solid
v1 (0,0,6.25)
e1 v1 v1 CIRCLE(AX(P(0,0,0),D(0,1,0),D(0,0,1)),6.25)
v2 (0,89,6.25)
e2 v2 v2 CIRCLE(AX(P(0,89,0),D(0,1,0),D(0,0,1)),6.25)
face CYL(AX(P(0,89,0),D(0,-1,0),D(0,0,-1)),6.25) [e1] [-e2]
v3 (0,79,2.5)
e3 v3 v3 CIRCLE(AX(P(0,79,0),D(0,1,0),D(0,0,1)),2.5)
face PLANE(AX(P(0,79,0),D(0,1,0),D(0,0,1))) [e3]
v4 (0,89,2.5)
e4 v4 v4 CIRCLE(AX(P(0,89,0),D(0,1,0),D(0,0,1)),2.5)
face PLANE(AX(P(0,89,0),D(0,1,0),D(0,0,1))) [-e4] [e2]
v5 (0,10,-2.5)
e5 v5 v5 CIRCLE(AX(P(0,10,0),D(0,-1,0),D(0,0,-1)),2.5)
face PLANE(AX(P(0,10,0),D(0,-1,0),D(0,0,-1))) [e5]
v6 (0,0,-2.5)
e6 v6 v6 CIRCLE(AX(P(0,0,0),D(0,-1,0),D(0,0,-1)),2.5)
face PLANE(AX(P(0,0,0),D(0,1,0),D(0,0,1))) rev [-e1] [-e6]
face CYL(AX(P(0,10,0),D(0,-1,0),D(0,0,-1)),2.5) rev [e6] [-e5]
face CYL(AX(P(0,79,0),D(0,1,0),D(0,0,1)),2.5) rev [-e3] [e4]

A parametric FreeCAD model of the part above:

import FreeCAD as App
import Part
import Sketcher
from FreeCAD import Vector

doc = App.newDocument("Part")
body = doc.addObject("PartDesign::Body", "Body")

sketch1 = doc.addObject("Sketcher::SketchObject", "Sketch")
body.addObject(sketch1)
sketch1.AttachmentSupport = (doc.XZ_Plane, [""])
sketch1.MapMode = "FlatFace"
sketch1.addGeometry(Part.Circle(Vector(0, 0, 0), Vector(0, 0, 1), 6), False)
sketch1.addConstraint([
    Sketcher.Constraint("Coincident", 0, 3, -1, 1),
    Sketcher.Constraint("Diameter", 0, 12.5),
])
pad1 = doc.addObject("PartDesign::Pad", "Pad")
body.addObject(pad1)
pad1.Profile = sketch1
pad1.Length = 89
pad1.Reversed = True

sketch2 = doc.addObject("Sketcher::SketchObject", "Sketch001")
body.addObject(sketch2)
sketch2.AttachmentSupport = (doc.XZ_Plane, [""])
sketch2.MapMode = "FlatFace"
sketch2.AttachmentOffset = App.Placement(Vector(0, 0, -89), App.Rotation())
sketch2.addGeometry(Part.Circle(Vector(0, 0, 0), Vector(0, 0, 1), 2.5), False)
sketch2.addConstraint([
    Sketcher.Constraint("Coincident", 0, 3, -1, 1),
    Sketcher.Constraint("Diameter", 0, 5.0),
])
pocket1 = doc.addObject("PartDesign::Pocket", "Pocket")
body.addObject(pocket1)
pocket1.Profile = sketch2
pocket1.Length = 10
pocket1.Reversed = True

sketch3 = doc.addObject("Sketcher::SketchObject", "Sketch002")
body.addObject(sketch3)
sketch3.AttachmentSupport = (doc.XZ_Plane, [""])
sketch3.MapMode = "FlatFace"
sketch3.AttachmentOffset = App.Placement(Vector(0, 0, -10), App.Rotation())
sketch3.addGeometry(Part.Circle(Vector(0, 0, 0), Vector(0, 0, 1), 2.5), False)
sketch3.addConstraint([
    Sketcher.Constraint("Coincident", 0, 3, -1, 1),
    Sketcher.Constraint("Diameter", 0, 5.0),
])
pocket2 = doc.addObject("PartDesign::Pocket", "Pocket001")
body.addObject(pocket2)
pocket2.Profile = sketch3
pocket2.Length = 10
pocket2.Reversed = True

doc.recompute()
